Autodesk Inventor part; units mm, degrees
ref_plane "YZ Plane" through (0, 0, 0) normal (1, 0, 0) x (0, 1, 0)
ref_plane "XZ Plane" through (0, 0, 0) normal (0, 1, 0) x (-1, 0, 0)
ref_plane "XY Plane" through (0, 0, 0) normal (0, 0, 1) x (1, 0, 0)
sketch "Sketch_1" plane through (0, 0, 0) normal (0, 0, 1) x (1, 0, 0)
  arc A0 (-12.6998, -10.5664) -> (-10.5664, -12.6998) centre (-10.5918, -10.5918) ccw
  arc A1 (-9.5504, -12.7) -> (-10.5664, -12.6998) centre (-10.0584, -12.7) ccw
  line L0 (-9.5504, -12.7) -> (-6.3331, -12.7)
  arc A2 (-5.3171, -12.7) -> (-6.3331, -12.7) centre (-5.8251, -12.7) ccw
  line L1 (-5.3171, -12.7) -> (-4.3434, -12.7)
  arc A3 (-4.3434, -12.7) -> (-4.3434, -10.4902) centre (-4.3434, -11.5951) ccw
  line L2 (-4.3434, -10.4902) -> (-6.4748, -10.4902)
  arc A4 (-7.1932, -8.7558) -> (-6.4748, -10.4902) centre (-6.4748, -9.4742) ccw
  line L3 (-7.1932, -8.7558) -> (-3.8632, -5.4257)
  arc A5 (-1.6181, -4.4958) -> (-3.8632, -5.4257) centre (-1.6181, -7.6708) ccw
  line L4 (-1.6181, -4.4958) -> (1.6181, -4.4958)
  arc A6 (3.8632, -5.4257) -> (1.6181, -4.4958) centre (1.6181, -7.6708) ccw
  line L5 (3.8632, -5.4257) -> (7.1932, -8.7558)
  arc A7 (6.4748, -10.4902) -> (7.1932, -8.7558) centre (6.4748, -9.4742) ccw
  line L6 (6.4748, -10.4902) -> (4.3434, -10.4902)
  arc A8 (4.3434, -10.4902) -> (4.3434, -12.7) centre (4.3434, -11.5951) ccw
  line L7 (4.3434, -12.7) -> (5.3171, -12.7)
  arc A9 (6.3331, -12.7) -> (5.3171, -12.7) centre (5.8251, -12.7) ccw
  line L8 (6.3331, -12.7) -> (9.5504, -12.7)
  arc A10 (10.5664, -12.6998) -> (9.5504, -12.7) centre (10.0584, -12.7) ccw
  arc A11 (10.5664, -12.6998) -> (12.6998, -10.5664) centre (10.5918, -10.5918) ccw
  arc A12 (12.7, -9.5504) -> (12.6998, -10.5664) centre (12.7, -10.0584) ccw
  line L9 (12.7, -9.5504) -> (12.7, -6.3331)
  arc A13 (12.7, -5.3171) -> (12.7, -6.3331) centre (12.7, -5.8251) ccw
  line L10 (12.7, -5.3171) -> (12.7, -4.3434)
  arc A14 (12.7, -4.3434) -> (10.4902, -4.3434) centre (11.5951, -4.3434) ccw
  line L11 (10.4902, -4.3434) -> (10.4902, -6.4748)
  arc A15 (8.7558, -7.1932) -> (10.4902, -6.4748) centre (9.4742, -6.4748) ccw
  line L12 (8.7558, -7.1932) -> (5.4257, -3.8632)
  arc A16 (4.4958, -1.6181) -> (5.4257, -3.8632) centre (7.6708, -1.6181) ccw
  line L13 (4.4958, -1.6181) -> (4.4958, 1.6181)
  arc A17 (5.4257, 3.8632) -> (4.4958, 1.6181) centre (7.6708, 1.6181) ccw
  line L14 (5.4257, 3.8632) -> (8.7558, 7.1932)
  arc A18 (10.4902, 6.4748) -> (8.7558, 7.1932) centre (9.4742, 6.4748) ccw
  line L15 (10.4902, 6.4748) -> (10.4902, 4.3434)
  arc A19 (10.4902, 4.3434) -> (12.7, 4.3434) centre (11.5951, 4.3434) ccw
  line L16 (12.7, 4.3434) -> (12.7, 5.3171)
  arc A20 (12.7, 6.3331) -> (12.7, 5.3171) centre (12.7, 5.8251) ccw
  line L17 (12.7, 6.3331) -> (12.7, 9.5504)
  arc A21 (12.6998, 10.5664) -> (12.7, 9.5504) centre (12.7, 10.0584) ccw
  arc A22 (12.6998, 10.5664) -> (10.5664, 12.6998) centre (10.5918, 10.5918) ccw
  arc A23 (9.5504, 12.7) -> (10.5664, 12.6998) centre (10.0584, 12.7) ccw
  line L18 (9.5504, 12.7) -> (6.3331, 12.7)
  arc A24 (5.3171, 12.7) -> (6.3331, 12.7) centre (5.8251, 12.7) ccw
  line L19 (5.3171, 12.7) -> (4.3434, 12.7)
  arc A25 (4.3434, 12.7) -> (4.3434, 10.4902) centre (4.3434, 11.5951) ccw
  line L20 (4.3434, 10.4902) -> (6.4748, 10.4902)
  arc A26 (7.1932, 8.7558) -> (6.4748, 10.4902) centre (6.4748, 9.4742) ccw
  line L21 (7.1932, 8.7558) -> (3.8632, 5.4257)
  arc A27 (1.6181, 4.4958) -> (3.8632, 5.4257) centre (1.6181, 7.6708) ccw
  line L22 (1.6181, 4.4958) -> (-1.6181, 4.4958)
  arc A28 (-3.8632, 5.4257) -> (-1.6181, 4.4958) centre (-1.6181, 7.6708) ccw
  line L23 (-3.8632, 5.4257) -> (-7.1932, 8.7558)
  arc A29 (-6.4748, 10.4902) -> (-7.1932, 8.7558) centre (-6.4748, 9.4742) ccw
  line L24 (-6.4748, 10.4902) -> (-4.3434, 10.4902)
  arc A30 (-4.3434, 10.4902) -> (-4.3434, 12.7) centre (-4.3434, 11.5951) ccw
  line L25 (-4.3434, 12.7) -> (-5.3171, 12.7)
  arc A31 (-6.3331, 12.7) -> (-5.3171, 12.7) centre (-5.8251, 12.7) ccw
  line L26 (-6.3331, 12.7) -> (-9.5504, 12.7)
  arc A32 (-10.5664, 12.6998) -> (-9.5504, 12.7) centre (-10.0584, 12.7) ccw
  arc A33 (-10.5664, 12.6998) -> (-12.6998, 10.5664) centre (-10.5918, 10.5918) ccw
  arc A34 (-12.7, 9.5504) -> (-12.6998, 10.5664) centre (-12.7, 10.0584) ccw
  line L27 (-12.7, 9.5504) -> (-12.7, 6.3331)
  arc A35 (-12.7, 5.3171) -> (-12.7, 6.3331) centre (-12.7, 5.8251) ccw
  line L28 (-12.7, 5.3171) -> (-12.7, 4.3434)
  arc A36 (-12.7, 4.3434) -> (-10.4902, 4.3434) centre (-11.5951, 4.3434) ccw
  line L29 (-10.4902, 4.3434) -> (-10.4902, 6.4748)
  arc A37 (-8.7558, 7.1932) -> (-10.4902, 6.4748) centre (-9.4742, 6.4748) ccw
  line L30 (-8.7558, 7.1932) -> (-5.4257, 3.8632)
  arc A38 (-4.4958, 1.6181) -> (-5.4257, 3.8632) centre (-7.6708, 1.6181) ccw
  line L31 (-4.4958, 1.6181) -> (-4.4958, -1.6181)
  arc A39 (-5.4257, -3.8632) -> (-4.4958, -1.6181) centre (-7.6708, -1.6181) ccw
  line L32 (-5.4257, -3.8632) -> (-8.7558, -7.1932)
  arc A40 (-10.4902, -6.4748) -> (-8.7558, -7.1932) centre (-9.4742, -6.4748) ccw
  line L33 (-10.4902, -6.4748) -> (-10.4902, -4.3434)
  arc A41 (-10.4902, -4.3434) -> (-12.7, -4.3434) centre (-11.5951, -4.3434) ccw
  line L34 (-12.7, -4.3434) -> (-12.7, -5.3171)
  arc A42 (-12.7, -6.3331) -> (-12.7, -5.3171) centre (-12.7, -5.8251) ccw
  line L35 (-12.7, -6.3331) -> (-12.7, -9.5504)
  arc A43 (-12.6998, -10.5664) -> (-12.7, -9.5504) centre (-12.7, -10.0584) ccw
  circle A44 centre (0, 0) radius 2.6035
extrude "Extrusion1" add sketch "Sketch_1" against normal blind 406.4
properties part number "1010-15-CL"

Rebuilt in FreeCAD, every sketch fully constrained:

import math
import FreeCAD as App
import Part
import Sketcher

V = App.Vector
Q = App.Units.Quantity

doc = App.newDocument("Part")
body = doc.addObject("PartDesign::Body", "Body")

# Sketch on XY plane
sketch1 = body.newObject("Sketcher::SketchObject", "Sketch")
sketch1.AttachmentSupport = (doc.getObject("XY_Plane"), [""])
sketch1.MapMode = "FlatFace"
sketch1.addGeometry([
    Part.ArcOfCircle(Part.Circle(V(-12.7, -10.1, 0), V(0, 0, 1), 0.5), math.radians(-90), math.radians(90)),  # 0
    Part.ArcOfCircle(Part.Circle(V(-10.6, -10.6, 0), V(0, 0, 1), 2.1), math.radians(179), math.radians(271)),  # 1
    Part.ArcOfCircle(Part.Circle(V(-10.1, -12.7, 0), V(0, 0, 1), 0.5), math.radians(0), math.radians(180)),  # 2
    Part.LineSegment(V(-9.6, -12.7, 0), V(-6.3, -12.7, 0)),  # 3
    Part.ArcOfCircle(Part.Circle(V(-5.8, -12.7, 0), V(0, 0, 1), 0.5), math.radians(0), math.radians(180)),  # 4
    Part.LineSegment(V(-5.3, -12.7, 0), V(-4.3, -12.7, 0)),  # 5
    Part.ArcOfCircle(Part.Circle(V(-4.3, -11.6, 0), V(0, 0, 1), 1.1), math.radians(-90), math.radians(90)),  # 6
    Part.LineSegment(V(-4.3, -10.5, 0), V(-6.5, -10.5, 0)),  # 7
    Part.ArcOfCircle(Part.Circle(V(-6.5, -9.5, 0), V(0, 0, 1), 1), math.radians(135), math.radians(270)),  # 8
    Part.LineSegment(V(-7.2, -8.8, 0), V(-3.9, -5.4, 0)),  # 9
    Part.ArcOfCircle(Part.Circle(V(-1.6, -7.7, 0), V(0, 0, 1), 3.2), math.radians(90), math.radians(135)),  # 10
    Part.LineSegment(V(-1.6, -4.5, 0), V(1.6, -4.5, 0)),  # 11
    Part.ArcOfCircle(Part.Circle(V(1.6, -7.7, 0), V(0, 0, 1), 3.2), math.radians(45), math.radians(90)),  # 12
    Part.LineSegment(V(3.9, -5.4, 0), V(7.2, -8.8, 0)),  # 13
    Part.ArcOfCircle(Part.Circle(V(6.5, -9.5, 0), V(0, 0, 1), 1), math.radians(-90), math.radians(45)),  # 14
    Part.LineSegment(V(6.5, -10.5, 0), V(4.3, -10.5, 0)),  # 15
    Part.ArcOfCircle(Part.Circle(V(4.3, -11.6, 0), V(0, 0, 1), 1.1), math.radians(90), math.radians(270)),  # 16
    Part.LineSegment(V(4.3, -12.7, 0), V(5.3, -12.7, 0)),  # 17
    Part.ArcOfCircle(Part.Circle(V(5.8, -12.7, 0), V(0, 0, 1), 0.5), math.radians(0), math.radians(180)),  # 18
    Part.LineSegment(V(6.3, -12.7, 0), V(9.6, -12.7, 0)),  # 19
    Part.ArcOfCircle(Part.Circle(V(10.1, -12.7, 0), V(0, 0, 1), 0.5), math.radians(0), math.radians(180)),  # 20
    Part.ArcOfCircle(Part.Circle(V(10.6, -10.6, 0), V(0, 0, 1), 2.1), math.radians(-91), math.radians(1)),  # 21
    Part.ArcOfCircle(Part.Circle(V(12.7, -10.1, 0), V(0, 0, 1), 0.5), math.radians(90), math.radians(270)),  # 22
    Part.LineSegment(V(12.7, -9.6, 0), V(12.7, -6.3, 0)),  # 23
    Part.ArcOfCircle(Part.Circle(V(12.7, -5.8, 0), V(0, 0, 1), 0.5), math.radians(90), math.radians(270)),  # 24
    Part.LineSegment(V(12.7, -5.3, 0), V(12.7, -4.3, 0)),  # 25
    Part.ArcOfCircle(Part.Circle(V(11.6, -4.3, 0), V(0, 0, 1), 1.1), math.radians(0), math.radians(180)),  # 26
    Part.LineSegment(V(10.5, -4.3, 0), V(10.5, -6.5, 0)),  # 27
    Part.ArcOfCircle(Part.Circle(V(9.5, -6.5, 0), V(0, 0, 1), 1), math.radians(-135), math.radians(0)),  # 28
    Part.LineSegment(V(8.8, -7.2, 0), V(5.4, -3.9, 0)),  # 29
    Part.ArcOfCircle(Part.Circle(V(7.7, -1.6, 0), V(0, 0, 1), 3.2), math.radians(180), math.radians(225)),  # 30
    Part.LineSegment(V(4.5, -1.6, 0), V(4.5, 1.6, 0)),  # 31
    Part.ArcOfCircle(Part.Circle(V(7.7, 1.6, 0), V(0, 0, 1), 3.2), math.radians(135), math.radians(180)),  # 32
    Part.LineSegment(V(5.4, 3.9, 0), V(8.8, 7.2, 0)),  # 33
    Part.ArcOfCircle(Part.Circle(V(9.5, 6.5, 0), V(0, 0, 1), 1), math.radians(0), math.radians(135)),  # 34
    Part.LineSegment(V(10.5, 6.5, 0), V(10.5, 4.3, 0)),  # 35
    Part.ArcOfCircle(Part.Circle(V(11.6, 4.3, 0), V(0, 0, 1), 1.1), math.radians(180), math.radians(360)),  # 36
    Part.LineSegment(V(12.7, 4.3, 0), V(12.7, 5.3, 0)),  # 37
    Part.ArcOfCircle(Part.Circle(V(12.7, 5.8, 0), V(0, 0, 1), 0.5), math.radians(90), math.radians(270)),  # 38
    Part.LineSegment(V(12.7, 6.3, 0), V(12.7, 9.6, 0)),  # 39
    Part.ArcOfCircle(Part.Circle(V(12.7, 10.1, 0), V(0, 0, 1), 0.5), math.radians(90), math.radians(270)),  # 40
    Part.ArcOfCircle(Part.Circle(V(10.6, 10.6, 0), V(0, 0, 1), 2.1), math.radians(-1), math.radians(91)),  # 41
    Part.ArcOfCircle(Part.Circle(V(10.1, 12.7, 0), V(0, 0, 1), 0.5), math.radians(180), math.radians(360)),  # 42
    Part.LineSegment(V(9.6, 12.7, 0), V(6.3, 12.7, 0)),  # 43
    Part.ArcOfCircle(Part.Circle(V(5.8, 12.7, 0), V(0, 0, 1), 0.5), math.radians(180), math.radians(360)),  # 44
    Part.LineSegment(V(5.3, 12.7, 0), V(4.3, 12.7, 0)),  # 45
    Part.ArcOfCircle(Part.Circle(V(4.3, 11.6, 0), V(0, 0, 1), 1.1), math.radians(90), math.radians(270)),  # 46
    Part.LineSegment(V(4.3, 10.5, 0), V(6.5, 10.5, 0)),  # 47
    Part.ArcOfCircle(Part.Circle(V(6.5, 9.5, 0), V(0, 0, 1), 1), math.radians(-45), math.radians(90)),  # 48
    Part.LineSegment(V(7.2, 8.8, 0), V(3.9, 5.4, 0)),  # 49
    Part.ArcOfCircle(Part.Circle(V(1.6, 7.7, 0), V(0, 0, 1), 3.2), math.radians(-90), math.radians(-45)),  # 50
    Part.LineSegment(V(1.6, 4.5, 0), V(-1.6, 4.5, 0)),  # 51
    Part.ArcOfCircle(Part.Circle(V(-1.6, 7.7, 0), V(0, 0, 1), 3.2), math.radians(-135), math.radians(-90)),  # 52
    Part.LineSegment(V(-3.9, 5.4, 0), V(-7.2, 8.8, 0)),  # 53
    Part.ArcOfCircle(Part.Circle(V(-6.5, 9.5, 0), V(0, 0, 1), 1), math.radians(90), math.radians(225)),  # 54
    Part.LineSegment(V(-6.5, 10.5, 0), V(-4.3, 10.5, 0)),  # 55
    Part.ArcOfCircle(Part.Circle(V(-4.3, 11.6, 0), V(0, 0, 1), 1.1), math.radians(-90), math.radians(90)),  # 56
    Part.LineSegment(V(-4.3, 12.7, 0), V(-5.3, 12.7, 0)),  # 57
    Part.ArcOfCircle(Part.Circle(V(-5.8, 12.7, 0), V(0, 0, 1), 0.5), math.radians(180), math.radians(360)),  # 58
    Part.LineSegment(V(-6.3, 12.7, 0), V(-9.6, 12.7, 0)),  # 59
    Part.ArcOfCircle(Part.Circle(V(-10.1, 12.7, 0), V(0, 0, 1), 0.5), math.radians(-180), math.radians(0)),  # 60
    Part.ArcOfCircle(Part.Circle(V(-10.6, 10.6, 0), V(0, 0, 1), 2.1), math.radians(89), math.radians(181)),  # 61
    Part.ArcOfCircle(Part.Circle(V(-12.7, 10.1, 0), V(0, 0, 1), 0.5), math.radians(-90), math.radians(90)),  # 62
    Part.LineSegment(V(-12.7, 9.6, 0), V(-12.7, 6.3, 0)),  # 63
    Part.ArcOfCircle(Part.Circle(V(-12.7, 5.8, 0), V(0, 0, 1), 0.5), math.radians(-90), math.radians(90)),  # 64
    Part.LineSegment(V(-12.7, 5.3, 0), V(-12.7, 4.3, 0)),  # 65
    Part.ArcOfCircle(Part.Circle(V(-11.6, 4.3, 0), V(0, 0, 1), 1.1), math.radians(180), math.radians(360)),  # 66
    Part.LineSegment(V(-10.5, 4.3, 0), V(-10.5, 6.5, 0)),  # 67
    Part.ArcOfCircle(Part.Circle(V(-9.5, 6.5, 0), V(0, 0, 1), 1), math.radians(45), math.radians(180)),  # 68
    Part.LineSegment(V(-8.8, 7.2, 0), V(-5.4, 3.9, 0)),  # 69
    Part.ArcOfCircle(Part.Circle(V(-7.7, 1.6, 0), V(0, 0, 1), 3.2), math.radians(0), math.radians(45)),  # 70
    Part.LineSegment(V(-4.5, 1.6, 0), V(-4.5, -1.6, 0)),  # 71
    Part.ArcOfCircle(Part.Circle(V(-7.7, -1.6, 0), V(0, 0, 1), 3.2), math.radians(-45), math.radians(0)),  # 72
    Part.LineSegment(V(-5.4, -3.9, 0), V(-8.8, -7.2, 0)),  # 73
    Part.ArcOfCircle(Part.Circle(V(-9.5, -6.5, 0), V(0, 0, 1), 1), math.radians(180), math.radians(315)),  # 74
    Part.LineSegment(V(-10.5, -6.5, 0), V(-10.5, -4.3, 0)),  # 75
    Part.ArcOfCircle(Part.Circle(V(-11.6, -4.3, 0), V(0, 0, 1), 1.1), math.radians(0), math.radians(180)),  # 76
    Part.LineSegment(V(-12.7, -4.3, 0), V(-12.7, -5.3, 0)),  # 77
    Part.ArcOfCircle(Part.Circle(V(-12.7, -5.8, 0), V(0, 0, 1), 0.5), math.radians(-90), math.radians(90)),  # 78
    Part.LineSegment(V(-12.7, -6.3, 0), V(-12.7, -9.6, 0)),  # 79
    Part.Circle(V(0, 0, 0), V(0, 0, 1), 2.6),  # 80
], False)
sketch1.addConstraint([
    Sketcher.Constraint("Coincident", 0, 1, 1, 1),
    Sketcher.Constraint("Coincident", 1, 2, 2, 2),
    Sketcher.Constraint("Coincident", 2, 1, 3, 1),
    Sketcher.Constraint("Coincident", 3, 2, 4, 2),
    Sketcher.Constraint("Coincident", 4, 1, 5, 1),
    Sketcher.Constraint("Tangent", 5, 2, 6, 1),
    Sketcher.Constraint("Tangent", 6, 2, 7, 1),
    Sketcher.Constraint("Tangent", 7, 2, 8, 2),
    Sketcher.Constraint("Tangent", 8, 1, 9, 1),
    Sketcher.Constraint("Tangent", 9, 2, 10, 2),
    Sketcher.Constraint("Tangent", 10, 1, 11, 1),
    Sketcher.Constraint("Tangent", 11, 2, 12, 2),
    Sketcher.Constraint("Tangent", 12, 1, 13, 1),
    Sketcher.Constraint("Tangent", 13, 2, 14, 2),
    Sketcher.Constraint("Tangent", 14, 1, 15, 1),
    Sketcher.Constraint("Tangent", 15, 2, 16, 1),
    Sketcher.Constraint("Tangent", 16, 2, 17, 1),
    Sketcher.Constraint("Coincident", 17, 2, 18, 2),
    Sketcher.Constraint("Coincident", 18, 1, 19, 1),
    Sketcher.Constraint("Coincident", 19, 2, 20, 2),
    Sketcher.Constraint("Coincident", 20, 1, 21, 1),
    Sketcher.Constraint("Coincident", 21, 2, 22, 2),
    Sketcher.Constraint("Coincident", 22, 1, 23, 1),
    Sketcher.Constraint("Coincident", 23, 2, 24, 2),
    Sketcher.Constraint("Coincident", 24, 1, 25, 1),
    Sketcher.Constraint("Tangent", 25, 2, 26, 1),
    Sketcher.Constraint("Tangent", 26, 2, 27, 1),
    Sketcher.Constraint("Tangent", 27, 2, 28, 2),
    Sketcher.Constraint("Tangent", 28, 1, 29, 1),
    Sketcher.Constraint("Tangent", 29, 2, 30, 2),
    Sketcher.Constraint("Tangent", 30, 1, 31, 1),
    Sketcher.Constraint("Tangent", 31, 2, 32, 2),
    Sketcher.Constraint("Tangent", 32, 1, 33, 1),
    Sketcher.Constraint("Tangent", 33, 2, 34, 2),
    Sketcher.Constraint("Tangent", 34, 1, 35, 1),
    Sketcher.Constraint("Tangent", 35, 2, 36, 1),
    Sketcher.Constraint("Tangent", 36, 2, 37, 1),
    Sketcher.Constraint("Coincident", 37, 2, 38, 2),
    Sketcher.Constraint("Coincident", 38, 1, 39, 1),
    Sketcher.Constraint("Coincident", 39, 2, 40, 2),
    Sketcher.Constraint("Coincident", 40, 1, 41, 1),
    Sketcher.Constraint("Coincident", 41, 2, 42, 2),
    Sketcher.Constraint("Coincident", 42, 1, 43, 1),
    Sketcher.Constraint("Coincident", 43, 2, 44, 2),
    Sketcher.Constraint("Coincident", 44, 1, 45, 1),
    Sketcher.Constraint("Tangent", 45, 2, 46, 1),
    Sketcher.Constraint("Tangent", 46, 2, 47, 1),
    Sketcher.Constraint("Tangent", 47, 2, 48, 2),
    Sketcher.Constraint("Tangent", 48, 1, 49, 1),
    Sketcher.Constraint("Tangent", 49, 2, 50, 2),
    Sketcher.Constraint("Tangent", 50, 1, 51, 1),
    Sketcher.Constraint("Tangent", 51, 2, 52, 2),
    Sketcher.Constraint("Tangent", 52, 1, 53, 1),
    Sketcher.Constraint("Tangent", 53, 2, 54, 2),
    Sketcher.Constraint("Tangent", 54, 1, 55, 1),
    Sketcher.Constraint("Tangent", 55, 2, 56, 1),
    Sketcher.Constraint("Tangent", 56, 2, 57, 1),
    Sketcher.Constraint("Coincident", 57, 2, 58, 2),
    Sketcher.Constraint("Coincident", 58, 1, 59, 1),
    Sketcher.Constraint("Coincident", 59, 2, 60, 2),
    Sketcher.Constraint("Coincident", 60, 1, 61, 1),
    Sketcher.Constraint("Coincident", 61, 2, 62, 2),
    Sketcher.Constraint("Coincident", 62, 1, 63, 1),
    Sketcher.Constraint("Coincident", 63, 2, 64, 2),
    Sketcher.Constraint("Coincident", 64, 1, 65, 1),
    Sketcher.Constraint("Tangent", 65, 2, 66, 1),
    Sketcher.Constraint("Tangent", 66, 2, 67, 1),
    Sketcher.Constraint("Tangent", 67, 2, 68, 2),
    Sketcher.Constraint("Tangent", 68, 1, 69, 1),
    Sketcher.Constraint("Tangent", 69, 2, 70, 2),
    Sketcher.Constraint("Tangent", 70, 1, 71, 1),
    Sketcher.Constraint("Tangent", 71, 2, 72, 2),
    Sketcher.Constraint("Tangent", 72, 1, 73, 1),
    Sketcher.Constraint("Tangent", 73, 2, 74, 2),
    Sketcher.Constraint("Tangent", 74, 1, 75, 1),
    Sketcher.Constraint("Tangent", 75, 2, 76, 1),
    Sketcher.Constraint("Tangent", 76, 2, 77, 1),
    Sketcher.Constraint("Coincident", 77, 2, 78, 2),
    Sketcher.Constraint("Coincident", 78, 1, 79, 1),
    Sketcher.Constraint("Coincident", 79, 2, 0, 2),
    Sketcher.Constraint("Horizontal", 3),
    Sketcher.Constraint("Horizontal", 5),
    Sketcher.Constraint("Horizontal", 7),
    Sketcher.Constraint("Horizontal", 11),
    Sketcher.Constraint("Horizontal", 15),
    Sketcher.Constraint("Horizontal", 17),
    Sketcher.Constraint("Horizontal", 19),
    Sketcher.Constraint("Vertical", 23),
    Sketcher.Constraint("Vertical", 25),
    Sketcher.Constraint("Vertical", 27),
    Sketcher.Constraint("Vertical", 31),
    Sketcher.Constraint("Vertical", 35),
    Sketcher.Constraint("Vertical", 37),
    Sketcher.Constraint("Vertical", 39),
    Sketcher.Constraint("Horizontal", 43),
    Sketcher.Constraint("Horizontal", 45),
    Sketcher.Constraint("Horizontal", 47),
    Sketcher.Constraint("Horizontal", 51),
    Sketcher.Constraint("Horizontal", 55),
    Sketcher.Constraint("Horizontal", 57),
    Sketcher.Constraint("Horizontal", 59),
    Sketcher.Constraint("Vertical", 63),
    Sketcher.Constraint("Vertical", 65),
    Sketcher.Constraint("Vertical", 67),
    Sketcher.Constraint("Vertical", 71),
    Sketcher.Constraint("Vertical", 75),
    Sketcher.Constraint("Vertical", 77),
    Sketcher.Constraint("Vertical", 79),
    Sketcher.Constraint("Coincident", 80, 3, -1, 1),
    Sketcher.Constraint("Equal", 0, 2),
    Sketcher.Constraint("Equal", 2, 4),
    Sketcher.Constraint("Equal", 10, 12),
    Sketcher.Constraint("Equal", 8, 14),
    Sketcher.Constraint("Equal", 6, 16),
    Sketcher.Constraint("Equal", 4, 18),
    Sketcher.Constraint("Equal", 18, 20),
    Sketcher.Constraint("Equal", 1, 21),
    Sketcher.Constraint("Equal", 20, 22),
    Sketcher.Constraint("Equal", 22, 24),
    Sketcher.Constraint("Equal", 16, 26),
    Sketcher.Constraint("Equal", 14, 28),
    Sketcher.Constraint("Equal", 12, 30),
    Sketcher.Constraint("Equal", 30, 32),
    Sketcher.Constraint("Equal", 28, 34),
    Sketcher.Constraint("Equal", 26, 36),
    Sketcher.Constraint("Equal", 24, 38),
    Sketcher.Constraint("Equal", 38, 40),
    Sketcher.Constraint("Equal", 21, 41),
    Sketcher.Constraint("Equal", 40, 42),
    Sketcher.Constraint("Equal", 42, 44),
    Sketcher.Constraint("Equal", 36, 46),
    Sketcher.Constraint("Equal", 34, 48),
    Sketcher.Constraint("Equal", 32, 50),
    Sketcher.Constraint("Equal", 50, 52),
    Sketcher.Constraint("Equal", 48, 54),
    Sketcher.Constraint("Equal", 46, 56),
    Sketcher.Constraint("Equal", 44, 58),
    Sketcher.Constraint("Equal", 58, 60),
    Sketcher.Constraint("Equal", 41, 61),
    Sketcher.Constraint("Equal", 60, 62),
    Sketcher.Constraint("Equal", 62, 64),
    Sketcher.Constraint("Equal", 56, 66),
    Sketcher.Constraint("Equal", 54, 68),
    Sketcher.Constraint("Equal", 52, 70),
    Sketcher.Constraint("Equal", 70, 72),
    Sketcher.Constraint("Equal", 68, 74),
    Sketcher.Constraint("Equal", 66, 76),
    Sketcher.Constraint("Equal", 64, 78),
    Sketcher.Constraint("Symmetric", 0, 3, 40, 3, -1, 1),
    Sketcher.Constraint("Symmetric", 1, 3, 41, 3, -1, 1),
    Sketcher.Constraint("Symmetric", 2, 3, 42, 3, -1, 1),
    Sketcher.Constraint("Symmetric", 4, 3, 44, 3, -1, 1),
    Sketcher.Constraint("Symmetric", 6, 3, 46, 3, -1, 1),
    Sketcher.Constraint("Symmetric", 10, 3, 50, 3, -1, 1),
    Sketcher.Constraint("Symmetric", 14, 3, 54, 3, -1, 1),
    Sketcher.Constraint("Symmetric", 18, 3, 58, 3, -1, 1),
    Sketcher.Constraint("Symmetric", 20, 3, 60, 3, -1, 1),
    Sketcher.Constraint("Symmetric", 21, 3, 61, 3, -1, 1),
    Sketcher.Constraint("Symmetric", 22, 3, 62, 3, -1, 1),
    Sketcher.Constraint("Symmetric", 24, 3, 64, 3, -1, 1),
    Sketcher.Constraint("Symmetric", 26, 3, 66, 3, -1, 1),
    Sketcher.Constraint("Symmetric", 30, 3, 70, 3, -1, 1),
    Sketcher.Constraint("Symmetric", 34, 3, 74, 3, -1, 1),
    Sketcher.Constraint("Symmetric", 38, 3, 78, 3, -1, 1),
    Sketcher.Constraint("Symmetric", 8, 3, 14, 3, -2),
    Sketcher.Constraint("Symmetric", 4, 3, 18, 3, -2),
    Sketcher.Constraint("Symmetric", 2, 3, 20, 3, -2),
    Sketcher.Constraint("Symmetric", 1, 3, 21, 3, -2),
    Sketcher.Constraint("Symmetric", 0, 3, 22, 3, -2),
    Sketcher.Constraint("Symmetric", 38, 3, 64, 3, -2),
    Sketcher.Constraint("Symmetric", 36, 3, 66, 3, -2),
    Sketcher.Constraint("Symmetric", 49, 2, 52, 1, -2),
    Sketcher.Constraint("Symmetric", 33, 2, 68, 1, -2),
    Sketcher.Constraint("Symmetric", 29, 2, 72, 1, -2),
    Sketcher.Constraint("Perpendicular", 9, 13),
    Sketcher.Constraint("Parallel", 13, 29),
    Sketcher.Constraint("Perpendicular", 29, 33),
    Sketcher.Constraint("Horizontal", 2, 3, 4, 3),
    Sketcher.Constraint("Horizontal", 26, 3, 76, 3),
    Sketcher.Constraint("Horizontal", 20, 3, 1, 2),
    Sketcher.Constraint("Horizontal", 1, 2, 2, 1),
    Sketcher.Constraint("Horizontal", 3, 2, 4, 1),
    Sketcher.Constraint("Horizontal", 17, 2, 18, 1),
    Sketcher.Constraint("Horizontal", 41, 2, 42, 1),
    Sketcher.Constraint("Horizontal", 57, 2, 58, 1),
    Sketcher.Constraint("Vertical", 22, 3, 24, 3),
    Sketcher.Constraint("Vertical", 16, 3, 46, 3),
    Sketcher.Constraint("Vertical", 6, 3, 56, 3),
    Sketcher.Constraint("Vertical", 78, 3, 0, 1),
    Sketcher.Constraint("Vertical", 21, 2, 22, 1),
    Sketcher.Constraint("Vertical", 23, 2, 24, 1),
    Sketcher.Constraint("Vertical", 37, 2, 38, 1),
    Sketcher.Constraint("Vertical", 61, 2, 62, 1),
    Sketcher.Constraint("Vertical", 77, 2, 78, 1),
    Sketcher.Constraint("Equal", 59, 23),
    Sketcher.Constraint("Equal", 57, 25),
    Sketcher.Constraint("Equal", 55, 27),
    Sketcher.Constraint("Equal", 51, 31),
    Sketcher.Constraint("Equal", 13, 29),
    Sketcher.Constraint("Radius", 0, Q("0.02 in")),
    Sketcher.Constraint("Radius", 8, Q("0.04 in")),
    Sketcher.Constraint("Diameter", 80, Q("0.205 in")),
    Sketcher.Constraint("Radius", 1, Q("0.083 in")),
    Sketcher.Constraint("Radius", 10, Q("0.125 in")),
    Sketcher.Constraint("DistanceX", 0, 3, -1, 1, Q("0.5 in")),
    Sketcher.Constraint("DistanceY", 2, 3, -1, 1, Q("0.5 in")),
    Sketcher.Constraint("Radius", 6, Q("0.0435 in")),
    Sketcher.Constraint("DistanceX", 11, 1, 11, 2, Q("0.1274 in")),
    Sketcher.Constraint("DistanceY", 0, 3, -1, 1, Q("0.396 in")),
    Sketcher.Constraint("DistanceX", 6, 3, -1, 1, Q("0.171 in")),
    Sketcher.Constraint("DistanceY", 10, 3, -1, 1, Q("0.302 in")),
    Sketcher.Constraint("DistanceX", 3, 1, 3, 2, 3.2173),
])
pad1 = body.newObject("PartDesign::Pad", "Pad")
pad1.Profile = sketch1
pad1.Length = Q("16 in")
pad1.Reversed = True

doc.recompute()
